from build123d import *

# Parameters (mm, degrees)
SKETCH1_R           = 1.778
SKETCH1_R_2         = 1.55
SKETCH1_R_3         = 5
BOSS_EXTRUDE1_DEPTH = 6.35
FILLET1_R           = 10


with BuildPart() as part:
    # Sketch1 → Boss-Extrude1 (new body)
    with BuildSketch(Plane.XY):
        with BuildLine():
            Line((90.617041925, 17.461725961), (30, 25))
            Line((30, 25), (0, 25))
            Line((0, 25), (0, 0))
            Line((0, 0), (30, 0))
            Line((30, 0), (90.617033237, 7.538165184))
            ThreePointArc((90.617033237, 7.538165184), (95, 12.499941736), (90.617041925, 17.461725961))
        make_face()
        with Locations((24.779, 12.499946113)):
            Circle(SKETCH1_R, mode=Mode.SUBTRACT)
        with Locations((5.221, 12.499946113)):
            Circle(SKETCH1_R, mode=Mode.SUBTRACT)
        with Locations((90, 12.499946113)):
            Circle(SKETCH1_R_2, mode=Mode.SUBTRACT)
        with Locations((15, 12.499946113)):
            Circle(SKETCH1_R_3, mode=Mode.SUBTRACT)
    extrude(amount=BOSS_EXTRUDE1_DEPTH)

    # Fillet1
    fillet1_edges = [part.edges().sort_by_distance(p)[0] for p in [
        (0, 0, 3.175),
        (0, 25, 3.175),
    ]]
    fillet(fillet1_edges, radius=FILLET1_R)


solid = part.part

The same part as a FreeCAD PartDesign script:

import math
import FreeCAD as App
import Part
import Sketcher
from FreeCAD import Vector
Q = App.Units.Quantity


def edges_at(feature, points):
    """Names of the edges that pass closest to the given points."""
    edges = feature.Shape.Edges
    near = lambda p: min(range(len(edges)), key=lambda i: edges[i].distToShape(Part.Vertex(*p))[0])
    return sorted({f"Edge{near(p) + 1}" for p in points})

doc = App.newDocument("Part")
body = doc.addObject("PartDesign::Body", "Body")

# Sketch on XY plane
sketch1 = body.newObject("Sketcher::SketchObject", "Sketch")
sketch1.AttachmentSupport = (doc.getObject("XY_Plane"), [""])
sketch1.MapMode = "FlatFace"
sketch1.addGeometry(Part.LineSegment(Vector(90.6, 17.5, 0), Vector(30, 25, 0)), False)
sketch1.addGeometry(Part.LineSegment(Vector(30, 25, 0), Vector(0, 25, 0)), False)
sketch1.addGeometry(Part.LineSegment(Vector(0, 25, 0), Vector(0, 0, 0)), False)
sketch1.addGeometry(Part.LineSegment(Vector(0, 0, 0), Vector(30, 0, 0)), False)
sketch1.addGeometry(Part.LineSegment(Vector(30, 0, 0), Vector(90.6, 7.5, 0)), False)
sketch1.addGeometry(Part.ArcOfCircle(Part.Circle(Vector(90, 12.5, 0), Vector(0, 0, 1), 5), math.radians(-83), math.radians(83)), False)
sketch1.addGeometry(Part.Circle(Vector(5.2, 12.5, 0), Vector(0, 0, 1), 1.8), False)
sketch1.addGeometry(Part.Circle(Vector(15, 12.5, 0), Vector(0, 0, 1), 5), False)
sketch1.addGeometry(Part.Circle(Vector(24.8, 12.5, 0), Vector(0, 0, 1), 1.8), False)
sketch1.addGeometry(Part.Circle(Vector(90, 12.5, 0), Vector(0, 0, 1), 1.6), False)
sketch1.addConstraint(Sketcher.Constraint("Coincident", 0, 2, 1, 1))
sketch1.addConstraint(Sketcher.Constraint("Coincident", 1, 2, 2, 1))
sketch1.addConstraint(Sketcher.Constraint("Coincident", 2, 2, 3, 1))
sketch1.addConstraint(Sketcher.Constraint("Coincident", 3, 2, 4, 1))
sketch1.addConstraint(Sketcher.Constraint("Tangent", 4, 2, 5, 1))
sketch1.addConstraint(Sketcher.Constraint("Tangent", 5, 2, 0, 1))
sketch1.addConstraint(Sketcher.Constraint("Horizontal", 1))
sketch1.addConstraint(Sketcher.Constraint("Vertical", 2))
sketch1.addConstraint(Sketcher.Constraint("Horizontal", 3))
sketch1.addConstraint(Sketcher.Constraint("Coincident", 2, 2, -1, 1))
sketch1.addConstraint(Sketcher.Constraint("Coincident", 9, 3, 5, 3))
sketch1.addConstraint(Sketcher.Constraint("Equal", 5, 7))
sketch1.addConstraint(Sketcher.Constraint("Equal", 6, 8))
sketch1.addConstraint(Sketcher.Constraint("Horizontal", 5, 3, 6, 3))
sketch1.addConstraint(Sketcher.Constraint("Horizontal", 6, 3, 7, 3))
sketch1.addConstraint(Sketcher.Constraint("Horizontal", 7, 3, 8, 3))
sketch1.addConstraint(Sketcher.Constraint("Vertical", 0, 2, 3, 2))
sketch1.addConstraint(Sketcher.Constraint("Diameter", 7, Q("10 mm")))
sketch1.addConstraint(Sketcher.Constraint("Diameter", 9, Q("3.1 mm")))
sketch1.addConstraint(Sketcher.Constraint("DistanceX", 1, 2, 1, 1, Q("30 mm")))
sketch1.addConstraint(Sketcher.Constraint("DistanceY", 2, 2, 2, 1, Q("25 mm")))
sketch1.addConstraint(Sketcher.Constraint("Diameter", 6, Q("3.556 mm")))
sketch1.addConstraint(Sketcher.Constraint("DistanceX", -1, 1, 5, 3, Q("90 mm")))
sketch1.addConstraint(Sketcher.Constraint("DistanceX", -1, 1, 7, 3, Q("15 mm")))
sketch1.addConstraint(Sketcher.Constraint("DistanceX", -1, 1, 6, 3, Q("5.221 mm")))
sketch1.addConstraint(Sketcher.Constraint("DistanceX", -1, 1, 8, 3, Q("24.779 mm")))
sketch1.addConstraint(Sketcher.Constraint("Distance", 0, Q("61.08397 mm")))
pad1 = body.newObject("PartDesign::Pad", "Pad")
pad1.Profile = sketch1
pad1.Length = 6.35
doc.recompute()

fillet = body.newObject("PartDesign::Fillet", "Fillet")
fillet.Base = (pad1, edges_at(pad1, [(0, 0, 3.175), (0, 25, 3.175)]))
fillet.Radius = 10

doc.recompute()
